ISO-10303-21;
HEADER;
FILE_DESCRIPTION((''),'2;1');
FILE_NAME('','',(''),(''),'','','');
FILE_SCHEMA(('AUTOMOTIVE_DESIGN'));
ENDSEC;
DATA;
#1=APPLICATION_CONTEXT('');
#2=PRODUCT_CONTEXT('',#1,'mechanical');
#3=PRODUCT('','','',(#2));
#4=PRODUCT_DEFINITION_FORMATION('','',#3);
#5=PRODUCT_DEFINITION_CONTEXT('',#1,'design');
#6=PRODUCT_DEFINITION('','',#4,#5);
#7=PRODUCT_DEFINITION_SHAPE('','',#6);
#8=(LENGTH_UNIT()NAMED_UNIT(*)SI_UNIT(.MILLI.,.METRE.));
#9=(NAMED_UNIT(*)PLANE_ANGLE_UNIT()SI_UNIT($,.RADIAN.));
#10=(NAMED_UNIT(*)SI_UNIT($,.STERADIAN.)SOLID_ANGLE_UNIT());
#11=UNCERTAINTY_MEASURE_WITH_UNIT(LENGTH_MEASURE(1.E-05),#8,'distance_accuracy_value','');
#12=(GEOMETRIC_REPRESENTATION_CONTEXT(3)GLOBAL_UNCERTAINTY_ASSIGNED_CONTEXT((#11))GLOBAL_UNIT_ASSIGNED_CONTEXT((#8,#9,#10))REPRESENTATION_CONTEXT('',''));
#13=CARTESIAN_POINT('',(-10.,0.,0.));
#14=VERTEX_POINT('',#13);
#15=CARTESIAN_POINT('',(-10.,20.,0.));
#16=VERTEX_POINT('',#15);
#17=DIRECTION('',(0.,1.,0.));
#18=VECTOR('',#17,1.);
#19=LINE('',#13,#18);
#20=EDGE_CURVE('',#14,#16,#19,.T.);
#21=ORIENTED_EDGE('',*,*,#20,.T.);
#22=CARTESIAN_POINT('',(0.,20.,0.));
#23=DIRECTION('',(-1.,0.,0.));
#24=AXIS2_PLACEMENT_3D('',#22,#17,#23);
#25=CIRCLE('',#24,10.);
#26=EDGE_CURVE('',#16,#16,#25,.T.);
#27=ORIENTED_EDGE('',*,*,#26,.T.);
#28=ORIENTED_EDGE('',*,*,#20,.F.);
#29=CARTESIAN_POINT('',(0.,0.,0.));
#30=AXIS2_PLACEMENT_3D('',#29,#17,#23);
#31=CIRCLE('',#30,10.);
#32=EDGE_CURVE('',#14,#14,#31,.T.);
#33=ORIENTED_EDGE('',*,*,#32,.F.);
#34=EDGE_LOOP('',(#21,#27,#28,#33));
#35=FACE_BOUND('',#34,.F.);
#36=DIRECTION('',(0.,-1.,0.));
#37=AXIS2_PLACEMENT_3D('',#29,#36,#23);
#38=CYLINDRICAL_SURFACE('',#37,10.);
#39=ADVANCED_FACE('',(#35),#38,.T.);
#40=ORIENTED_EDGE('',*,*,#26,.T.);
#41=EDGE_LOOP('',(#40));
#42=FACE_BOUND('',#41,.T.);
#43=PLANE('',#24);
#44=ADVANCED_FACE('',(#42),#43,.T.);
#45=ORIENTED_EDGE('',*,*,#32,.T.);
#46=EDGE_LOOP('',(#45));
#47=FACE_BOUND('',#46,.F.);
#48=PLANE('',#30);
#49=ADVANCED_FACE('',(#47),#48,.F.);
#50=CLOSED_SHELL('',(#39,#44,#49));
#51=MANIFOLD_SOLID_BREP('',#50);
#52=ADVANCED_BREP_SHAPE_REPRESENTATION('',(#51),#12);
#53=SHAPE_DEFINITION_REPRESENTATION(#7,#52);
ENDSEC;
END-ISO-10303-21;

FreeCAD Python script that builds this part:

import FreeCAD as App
import Part
import Sketcher
Q = App.Units.Quantity

doc = App.newDocument("Part")
body = doc.addObject("PartDesign::Body", "Body")

# Sketch on XZ plane
sketch1 = body.newObject("Sketcher::SketchObject", "Sketch")
sketch1.AttachmentSupport = (doc.getObject("XZ_Plane"), [""])
sketch1.MapMode = "FlatFace"
sketch1.addGeometry(Part.Circle(App.Vector(0, 0, 0), App.Vector(0, 0, 1), 10), False)
sketch1.addConstraint([
    Sketcher.Constraint("Coincident", 0, 3, -1, 1),
    Sketcher.Constraint("Diameter", 0, Q("20 mm")),
])
pad1 = body.newObject("PartDesign::Pad", "Pad")
pad1.Profile = sketch1
pad1.Length = 20
pad1.Reversed = True

doc.recompute()
